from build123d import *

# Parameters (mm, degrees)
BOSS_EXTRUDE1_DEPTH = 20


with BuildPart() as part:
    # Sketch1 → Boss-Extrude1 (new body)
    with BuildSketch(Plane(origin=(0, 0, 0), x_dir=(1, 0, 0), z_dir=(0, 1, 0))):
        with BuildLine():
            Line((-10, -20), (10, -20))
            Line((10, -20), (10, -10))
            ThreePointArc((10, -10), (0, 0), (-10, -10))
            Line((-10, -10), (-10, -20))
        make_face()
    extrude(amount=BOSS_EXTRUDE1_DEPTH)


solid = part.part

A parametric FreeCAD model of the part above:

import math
import FreeCAD as App
import Part
import Sketcher

V = App.Vector
Q = App.Units.Quantity

doc = App.newDocument("Part")
body = doc.addObject("PartDesign::Body", "Body")

# Sketch on XZ plane
sketch1 = body.newObject("Sketcher::SketchObject", "Sketch")
sketch1.AttachmentSupport = (doc.getObject("XZ_Plane"), [""])
sketch1.MapMode = "FlatFace"
sketch1.addGeometry([
    Part.LineSegment(V(-10, 20, 0), V(10, 20, 0)),
    Part.LineSegment(V(10, 20, 0), V(10, 10, 0)),
    Part.ArcOfCircle(Part.Circle(V(0, 10, 0), V(0, 0, 1), 10), math.radians(180), math.radians(360)),
    Part.LineSegment(V(-10, 10, 0), V(-10, 20, 0)),
], False)
sketch1.addConstraint([
    Sketcher.Constraint("Coincident", 0, 2, 1, 1),
    Sketcher.Constraint("Tangent", 1, 2, 2, 2),
    Sketcher.Constraint("Tangent", 2, 1, 3, 1),
    Sketcher.Constraint("Coincident", 3, 2, 0, 1),
    Sketcher.Constraint("Horizontal", 0),
    Sketcher.Constraint("Vertical", 1),
    Sketcher.Constraint("Vertical", 3),
    Sketcher.Constraint("PointOnObject", 2, 3, -2),
    Sketcher.Constraint("Radius", 2, Q("10 mm")),
    Sketcher.Constraint("DistanceY", 1, 2, 1, 1, Q("10 mm")),
    Sketcher.Constraint("DistanceY", -1, 1, 2, 3, Q("10 mm")),
])
pad1 = body.newObject("PartDesign::Pad", "Pad")
pad1.Profile = sketch1
pad1.Length = 20
pad1.Reversed = True

doc.recompute()
